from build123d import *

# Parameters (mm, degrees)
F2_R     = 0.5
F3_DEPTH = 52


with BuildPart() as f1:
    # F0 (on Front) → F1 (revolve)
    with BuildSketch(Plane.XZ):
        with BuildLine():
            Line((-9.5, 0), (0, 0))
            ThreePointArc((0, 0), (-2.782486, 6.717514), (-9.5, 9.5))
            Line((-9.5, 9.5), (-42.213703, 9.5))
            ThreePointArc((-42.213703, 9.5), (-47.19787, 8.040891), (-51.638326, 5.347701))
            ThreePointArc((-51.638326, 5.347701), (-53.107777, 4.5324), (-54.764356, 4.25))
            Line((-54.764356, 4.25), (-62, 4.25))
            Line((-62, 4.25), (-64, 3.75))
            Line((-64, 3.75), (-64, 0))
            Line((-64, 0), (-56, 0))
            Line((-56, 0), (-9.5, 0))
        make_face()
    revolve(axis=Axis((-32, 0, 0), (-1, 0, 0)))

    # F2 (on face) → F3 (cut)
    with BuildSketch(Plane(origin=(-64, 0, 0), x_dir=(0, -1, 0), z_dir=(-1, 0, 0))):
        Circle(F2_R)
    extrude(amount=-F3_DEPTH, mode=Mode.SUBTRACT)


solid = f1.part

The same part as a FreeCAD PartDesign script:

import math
import FreeCAD as App
import Part
import Sketcher
from FreeCAD import Vector
Q = App.Units.Quantity

doc = App.newDocument("Part")
params = doc.addObject("Spreadsheet::Sheet", "Params")
for row, (alias, value) in enumerate([
    ("sketch1_radius", "9.500001 mm"),
    ("sketch1_width", "64 mm"),
    ("sketch1_height", "3.75 mm"),
    ("revolution_angle", "360 deg"),
    ("sketch2_diameter", "1 mm"),
    ("pocket1_length", "52 mm"),
], start=1):
    params.set(f"A{row}", alias)
    params.set(f"B{row}", "=" + value)
    params.setAlias(f"B{row}", alias)

body = doc.addObject("PartDesign::Body", "Body")

sketch1 = doc.addObject("Sketcher::SketchObject", "Sketch")
body.addObject(sketch1)
sketch1.AttachmentSupport = (doc.XZ_Plane, [""])
sketch1.MapMode = "FlatFace"
sketch1.addGeometry([
    Part.ArcOfCircle(Part.Circle(Vector(-9.5, 0, 0), Vector(0, 0, 1), 9.5), math.radians(0), math.radians(90)),
    Part.LineSegment(Vector(-9.5, 9.5, 0), Vector(-42.2, 9.5, 0)),
    Part.ArcOfCircle(Part.Circle(Vector(-39.1, -10.3, 0), Vector(0, 0, 1), 20), math.radians(99), math.radians(129)),
    Part.ArcOfCircle(Part.Circle(Vector(-54.8, 9.2, 0), Vector(0, 0, 1), 5), math.radians(-90), math.radians(-51)),
    Part.LineSegment(Vector(-54.8, 4.2, 0), Vector(-62, 4.2, 0)),
    Part.LineSegment(Vector(-62, 4.2, 0), Vector(-64, 3.8, 0)),
    Part.LineSegment(Vector(-64, 3.8, 0), Vector(-64, 0, 0)),
    Part.LineSegment(Vector(-64, 0, 0), Vector(0, 0, 0)),
], False)
sketch1.addConstraint([
    Sketcher.Constraint("Tangent", 0, 2, 1, 1),
    Sketcher.Constraint("Coincident", 1, 2, 2, 1),
    Sketcher.Constraint("Tangent", 2, 2, 3, 2),
    Sketcher.Constraint("Tangent", 3, 1, 4, 1),
    Sketcher.Constraint("Coincident", 4, 2, 5, 1),
    Sketcher.Constraint("Coincident", 5, 2, 6, 1),
    Sketcher.Constraint("Coincident", 6, 2, 7, 1),
    Sketcher.Constraint("Coincident", 7, 2, 0, 1),
    Sketcher.Constraint("Horizontal", 1),
    Sketcher.Constraint("Horizontal", 4),
    Sketcher.Constraint("Vertical", 6),
    Sketcher.Constraint("Horizontal", 7),
    Sketcher.Constraint("Coincident", 7, 2, -1, 1),
    Sketcher.Constraint("PointOnObject", 0, 3, -1),
    Sketcher.Constraint("Radius", 0, Q("9.500001 mm")),
    Sketcher.Constraint("DistanceX", 7, 1, 7, 2, Q("64 mm")),
    Sketcher.Constraint("DistanceX", 4, 2, -1, 1, Q("62 mm")),
    Sketcher.Constraint("DistanceY", 6, 2, 6, 1, Q("3.75 mm")),
    Sketcher.Constraint("DistanceY", 5, 2, 4, 2, Q("0.5 mm")),
    Sketcher.Constraint("Radius", 2, Q("19.999994 mm")),
    Sketcher.Constraint("Radius", 3, Q("4.999995 mm")),
    Sketcher.Constraint("DistanceY", -1, 1, 2, 2, Q("5.347701 mm")),
    Sketcher.Constraint("DistanceX", 1, 2, 0, 3, Q("32.713702 mm")),
])
sketch1.setExpression("Constraints[14]", "Params.sketch1_radius")
sketch1.setExpression("Constraints[15]", "Params.sketch1_width")
sketch1.setExpression("Constraints[17]", "Params.sketch1_height")
revolution = doc.addObject("PartDesign::Revolution", "Revolution")
body.addObject(revolution)
revolution.Profile = sketch1
revolution.ReferenceAxis = (sketch1, ["H_Axis"])
revolution.setExpression("Angle", "Params.revolution_angle")

sketch2 = doc.addObject("Sketcher::SketchObject", "Sketch001")
body.addObject(sketch2)
sketch2.AttachmentSupport = (doc.YZ_Plane, [""])
sketch2.MapMode = "FlatFace"
sketch2.AttachmentOffset = App.Placement(Vector(0, 0, -64), App.Rotation())
sketch2.addGeometry(Part.Circle(Vector(0, 0, 0), Vector(0, 0, 1), 0.5), False)
sketch2.addConstraint([
    Sketcher.Constraint("Coincident", 0, 3, -1, 1),
    Sketcher.Constraint("Diameter", 0, Q("1 mm")),
])
sketch2.setExpression("Constraints[1]", "Params.sketch2_diameter")
pocket1 = doc.addObject("PartDesign::Pocket", "Pocket")
body.addObject(pocket1)
pocket1.Profile = sketch2
pocket1.setExpression("Length", "Params.pocket1_length")
pocket1.Reversed = True

doc.recompute()
